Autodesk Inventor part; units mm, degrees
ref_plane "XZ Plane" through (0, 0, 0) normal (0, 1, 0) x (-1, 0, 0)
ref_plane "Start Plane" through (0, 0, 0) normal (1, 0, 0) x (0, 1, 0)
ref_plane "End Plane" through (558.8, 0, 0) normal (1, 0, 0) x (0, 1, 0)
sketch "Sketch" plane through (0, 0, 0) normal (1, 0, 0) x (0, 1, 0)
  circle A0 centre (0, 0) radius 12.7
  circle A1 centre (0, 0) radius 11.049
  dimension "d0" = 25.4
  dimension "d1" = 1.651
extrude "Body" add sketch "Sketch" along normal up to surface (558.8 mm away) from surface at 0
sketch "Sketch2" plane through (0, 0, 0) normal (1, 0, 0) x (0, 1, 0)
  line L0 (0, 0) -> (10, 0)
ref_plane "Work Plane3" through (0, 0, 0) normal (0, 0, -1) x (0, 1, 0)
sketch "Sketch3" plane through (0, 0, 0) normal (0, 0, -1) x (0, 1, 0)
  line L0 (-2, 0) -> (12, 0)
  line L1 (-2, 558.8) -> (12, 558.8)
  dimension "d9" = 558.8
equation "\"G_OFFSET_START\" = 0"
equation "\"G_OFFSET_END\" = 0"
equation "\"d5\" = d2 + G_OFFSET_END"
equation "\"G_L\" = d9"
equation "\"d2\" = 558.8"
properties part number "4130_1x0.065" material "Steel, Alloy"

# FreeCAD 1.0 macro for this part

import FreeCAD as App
import Part
import Sketcher
from FreeCAD import Vector
Q = App.Units.Quantity

doc = App.newDocument("Part")
body = doc.addObject("PartDesign::Body", "Body")

sketch1 = body.newObject("Sketcher::SketchObject", "Sketch")
sketch1.AttachmentSupport = (doc.getObject("YZ_Plane"), [""])
sketch1.MapMode = "FlatFace"
sketch1.addGeometry([
    Part.Circle(Vector(0, 0, 0), Vector(0, 0, 1), 13),
    Part.Circle(Vector(0, 0, 0), Vector(0, 0, 1), 11),
], False)
sketch1.addConstraint([
    Sketcher.Constraint("Coincident", 0, 3, -1, 1),
    Sketcher.Constraint("Coincident", 1, 3, -1, 1),
    Sketcher.Constraint("Diameter", 0, Q("1 in")),
    Sketcher.Constraint("Diameter", 1, Q("0.87 in")),
])
pad1 = body.newObject("PartDesign::Pad", "Pad")
pad1.Profile = sketch1
pad1.Length = Q("22 in")

doc.recompute()
